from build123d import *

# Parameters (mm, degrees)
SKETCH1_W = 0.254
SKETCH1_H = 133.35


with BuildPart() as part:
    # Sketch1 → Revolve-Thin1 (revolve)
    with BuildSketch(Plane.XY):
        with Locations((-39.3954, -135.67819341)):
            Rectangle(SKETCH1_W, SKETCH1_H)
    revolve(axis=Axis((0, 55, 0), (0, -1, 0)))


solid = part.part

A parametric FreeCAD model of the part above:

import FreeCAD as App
import Part
import Sketcher
Q = App.Units.Quantity


def add_polygon(sketch, points):
    """Adds a closed chain of lines whose ends are joined by coincident constraints."""
    first, n = sketch.GeometryCount, len(points)
    for a, b in zip(points, points[1:] + points[:1]):
        sketch.addGeometry(Part.LineSegment(App.Vector(*a, 0), App.Vector(*b, 0)), False)
    for i in range(n):
        sketch.addConstraint(Sketcher.Constraint("Coincident", first + i, 2, first + (i + 1) % n, 1))

doc = App.newDocument("Part")
params = doc.addObject("Spreadsheet::Sheet", "Params")
for row, (alias, value) in enumerate([
    ("sketch1_width", "0.01 in"),
    ("sketch1_height", "5.25 in"),
    ("revolution_angle", "360 deg"),
], start=1):
    params.set(f"A{row}", alias)
    params.set(f"B{row}", "=" + value)
    params.setAlias(f"B{row}", alias)

body = doc.addObject("PartDesign::Body", "Body")

# Sketch on XY plane
sketch1 = body.newObject("Sketcher::SketchObject", "Sketch")
sketch1.AttachmentSupport = (doc.getObject("XY_Plane"), [""])
sketch1.MapMode = "FlatFace"
add_polygon(sketch1, [(-39.52, -69), (-39.52, -202.35), (-39.27, -202.35), (-39.27, -69)])  # lines 0-3
sketch1.addConstraint([
    Sketcher.Constraint("Vertical", 0),
    Sketcher.Constraint("Horizontal", 1),
    Sketcher.Constraint("Vertical", 2),
    Sketcher.Constraint("Horizontal", 3),
    Sketcher.Constraint("DistanceX", 1, 1, 1, 2, Q("0.01 in")),
    Sketcher.Constraint("DistanceY", 0, 2, 0, 1, Q("5.25 in")),
    Sketcher.Constraint("DistanceX", 0, 2, -1, 1, Q("1.556 in")),
    Sketcher.Constraint("DistanceY", 0, 2, -1, 1, 202.353193),
])
sketch1.setExpression("Constraints[8]", "Params.sketch1_width")
sketch1.setExpression("Constraints[9]", "Params.sketch1_height")
revolution = body.newObject("PartDesign::Revolution", "Revolution")
revolution.Profile = sketch1
revolution.ReferenceAxis = (sketch1, ["V_Axis"])
revolution.setExpression("Angle", "Params.revolution_angle")

doc.recompute()
